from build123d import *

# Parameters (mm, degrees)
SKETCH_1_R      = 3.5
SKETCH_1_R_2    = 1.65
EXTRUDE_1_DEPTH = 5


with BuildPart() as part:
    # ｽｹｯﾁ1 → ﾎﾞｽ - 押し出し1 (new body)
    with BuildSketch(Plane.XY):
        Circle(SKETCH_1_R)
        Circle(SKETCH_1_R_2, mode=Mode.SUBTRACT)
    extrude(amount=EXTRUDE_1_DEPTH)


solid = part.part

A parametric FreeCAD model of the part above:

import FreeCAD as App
import Part
import Sketcher
Q = App.Units.Quantity

doc = App.newDocument("Part")
params = doc.addObject("Spreadsheet::Sheet", "Params")
for row, (alias, value) in enumerate([
    ("sketch1_diameter", "7 mm"),
    ("sketch1_diameter2", "3.3 mm"),
    ("pad1_length", "5 mm"),
], start=1):
    params.set(f"A{row}", alias)
    params.set(f"B{row}", "=" + value)
    params.setAlias(f"B{row}", alias)

body = doc.addObject("PartDesign::Body", "Body")

sketch1 = body.newObject("Sketcher::SketchObject", "Sketch")
sketch1.AttachmentSupport = (doc.getObject("XY_Plane"), [""])
sketch1.MapMode = "FlatFace"
sketch1.addGeometry(Part.Circle(App.Vector(0, 0, 0), App.Vector(0, 0, 1), 3.5), False)
sketch1.addGeometry(Part.Circle(App.Vector(0, 0, 0), App.Vector(0, 0, 1), 1.6), False)
sketch1.addConstraint(Sketcher.Constraint("Coincident", 0, 3, -1, 1))
sketch1.addConstraint(Sketcher.Constraint("Coincident", 1, 3, -1, 1))
sketch1.addConstraint(Sketcher.Constraint("Diameter", 0, Q("7 mm")))
sketch1.addConstraint(Sketcher.Constraint("Diameter", 1, Q("3.3 mm")))
sketch1.setExpression("Constraints[2]", "Params.sketch1_diameter")
sketch1.setExpression("Constraints[3]", "Params.sketch1_diameter2")
pad1 = body.newObject("PartDesign::Pad", "Pad")
pad1.Profile = sketch1
pad1.setExpression("Length", "Params.pad1_length")

doc.recompute()
